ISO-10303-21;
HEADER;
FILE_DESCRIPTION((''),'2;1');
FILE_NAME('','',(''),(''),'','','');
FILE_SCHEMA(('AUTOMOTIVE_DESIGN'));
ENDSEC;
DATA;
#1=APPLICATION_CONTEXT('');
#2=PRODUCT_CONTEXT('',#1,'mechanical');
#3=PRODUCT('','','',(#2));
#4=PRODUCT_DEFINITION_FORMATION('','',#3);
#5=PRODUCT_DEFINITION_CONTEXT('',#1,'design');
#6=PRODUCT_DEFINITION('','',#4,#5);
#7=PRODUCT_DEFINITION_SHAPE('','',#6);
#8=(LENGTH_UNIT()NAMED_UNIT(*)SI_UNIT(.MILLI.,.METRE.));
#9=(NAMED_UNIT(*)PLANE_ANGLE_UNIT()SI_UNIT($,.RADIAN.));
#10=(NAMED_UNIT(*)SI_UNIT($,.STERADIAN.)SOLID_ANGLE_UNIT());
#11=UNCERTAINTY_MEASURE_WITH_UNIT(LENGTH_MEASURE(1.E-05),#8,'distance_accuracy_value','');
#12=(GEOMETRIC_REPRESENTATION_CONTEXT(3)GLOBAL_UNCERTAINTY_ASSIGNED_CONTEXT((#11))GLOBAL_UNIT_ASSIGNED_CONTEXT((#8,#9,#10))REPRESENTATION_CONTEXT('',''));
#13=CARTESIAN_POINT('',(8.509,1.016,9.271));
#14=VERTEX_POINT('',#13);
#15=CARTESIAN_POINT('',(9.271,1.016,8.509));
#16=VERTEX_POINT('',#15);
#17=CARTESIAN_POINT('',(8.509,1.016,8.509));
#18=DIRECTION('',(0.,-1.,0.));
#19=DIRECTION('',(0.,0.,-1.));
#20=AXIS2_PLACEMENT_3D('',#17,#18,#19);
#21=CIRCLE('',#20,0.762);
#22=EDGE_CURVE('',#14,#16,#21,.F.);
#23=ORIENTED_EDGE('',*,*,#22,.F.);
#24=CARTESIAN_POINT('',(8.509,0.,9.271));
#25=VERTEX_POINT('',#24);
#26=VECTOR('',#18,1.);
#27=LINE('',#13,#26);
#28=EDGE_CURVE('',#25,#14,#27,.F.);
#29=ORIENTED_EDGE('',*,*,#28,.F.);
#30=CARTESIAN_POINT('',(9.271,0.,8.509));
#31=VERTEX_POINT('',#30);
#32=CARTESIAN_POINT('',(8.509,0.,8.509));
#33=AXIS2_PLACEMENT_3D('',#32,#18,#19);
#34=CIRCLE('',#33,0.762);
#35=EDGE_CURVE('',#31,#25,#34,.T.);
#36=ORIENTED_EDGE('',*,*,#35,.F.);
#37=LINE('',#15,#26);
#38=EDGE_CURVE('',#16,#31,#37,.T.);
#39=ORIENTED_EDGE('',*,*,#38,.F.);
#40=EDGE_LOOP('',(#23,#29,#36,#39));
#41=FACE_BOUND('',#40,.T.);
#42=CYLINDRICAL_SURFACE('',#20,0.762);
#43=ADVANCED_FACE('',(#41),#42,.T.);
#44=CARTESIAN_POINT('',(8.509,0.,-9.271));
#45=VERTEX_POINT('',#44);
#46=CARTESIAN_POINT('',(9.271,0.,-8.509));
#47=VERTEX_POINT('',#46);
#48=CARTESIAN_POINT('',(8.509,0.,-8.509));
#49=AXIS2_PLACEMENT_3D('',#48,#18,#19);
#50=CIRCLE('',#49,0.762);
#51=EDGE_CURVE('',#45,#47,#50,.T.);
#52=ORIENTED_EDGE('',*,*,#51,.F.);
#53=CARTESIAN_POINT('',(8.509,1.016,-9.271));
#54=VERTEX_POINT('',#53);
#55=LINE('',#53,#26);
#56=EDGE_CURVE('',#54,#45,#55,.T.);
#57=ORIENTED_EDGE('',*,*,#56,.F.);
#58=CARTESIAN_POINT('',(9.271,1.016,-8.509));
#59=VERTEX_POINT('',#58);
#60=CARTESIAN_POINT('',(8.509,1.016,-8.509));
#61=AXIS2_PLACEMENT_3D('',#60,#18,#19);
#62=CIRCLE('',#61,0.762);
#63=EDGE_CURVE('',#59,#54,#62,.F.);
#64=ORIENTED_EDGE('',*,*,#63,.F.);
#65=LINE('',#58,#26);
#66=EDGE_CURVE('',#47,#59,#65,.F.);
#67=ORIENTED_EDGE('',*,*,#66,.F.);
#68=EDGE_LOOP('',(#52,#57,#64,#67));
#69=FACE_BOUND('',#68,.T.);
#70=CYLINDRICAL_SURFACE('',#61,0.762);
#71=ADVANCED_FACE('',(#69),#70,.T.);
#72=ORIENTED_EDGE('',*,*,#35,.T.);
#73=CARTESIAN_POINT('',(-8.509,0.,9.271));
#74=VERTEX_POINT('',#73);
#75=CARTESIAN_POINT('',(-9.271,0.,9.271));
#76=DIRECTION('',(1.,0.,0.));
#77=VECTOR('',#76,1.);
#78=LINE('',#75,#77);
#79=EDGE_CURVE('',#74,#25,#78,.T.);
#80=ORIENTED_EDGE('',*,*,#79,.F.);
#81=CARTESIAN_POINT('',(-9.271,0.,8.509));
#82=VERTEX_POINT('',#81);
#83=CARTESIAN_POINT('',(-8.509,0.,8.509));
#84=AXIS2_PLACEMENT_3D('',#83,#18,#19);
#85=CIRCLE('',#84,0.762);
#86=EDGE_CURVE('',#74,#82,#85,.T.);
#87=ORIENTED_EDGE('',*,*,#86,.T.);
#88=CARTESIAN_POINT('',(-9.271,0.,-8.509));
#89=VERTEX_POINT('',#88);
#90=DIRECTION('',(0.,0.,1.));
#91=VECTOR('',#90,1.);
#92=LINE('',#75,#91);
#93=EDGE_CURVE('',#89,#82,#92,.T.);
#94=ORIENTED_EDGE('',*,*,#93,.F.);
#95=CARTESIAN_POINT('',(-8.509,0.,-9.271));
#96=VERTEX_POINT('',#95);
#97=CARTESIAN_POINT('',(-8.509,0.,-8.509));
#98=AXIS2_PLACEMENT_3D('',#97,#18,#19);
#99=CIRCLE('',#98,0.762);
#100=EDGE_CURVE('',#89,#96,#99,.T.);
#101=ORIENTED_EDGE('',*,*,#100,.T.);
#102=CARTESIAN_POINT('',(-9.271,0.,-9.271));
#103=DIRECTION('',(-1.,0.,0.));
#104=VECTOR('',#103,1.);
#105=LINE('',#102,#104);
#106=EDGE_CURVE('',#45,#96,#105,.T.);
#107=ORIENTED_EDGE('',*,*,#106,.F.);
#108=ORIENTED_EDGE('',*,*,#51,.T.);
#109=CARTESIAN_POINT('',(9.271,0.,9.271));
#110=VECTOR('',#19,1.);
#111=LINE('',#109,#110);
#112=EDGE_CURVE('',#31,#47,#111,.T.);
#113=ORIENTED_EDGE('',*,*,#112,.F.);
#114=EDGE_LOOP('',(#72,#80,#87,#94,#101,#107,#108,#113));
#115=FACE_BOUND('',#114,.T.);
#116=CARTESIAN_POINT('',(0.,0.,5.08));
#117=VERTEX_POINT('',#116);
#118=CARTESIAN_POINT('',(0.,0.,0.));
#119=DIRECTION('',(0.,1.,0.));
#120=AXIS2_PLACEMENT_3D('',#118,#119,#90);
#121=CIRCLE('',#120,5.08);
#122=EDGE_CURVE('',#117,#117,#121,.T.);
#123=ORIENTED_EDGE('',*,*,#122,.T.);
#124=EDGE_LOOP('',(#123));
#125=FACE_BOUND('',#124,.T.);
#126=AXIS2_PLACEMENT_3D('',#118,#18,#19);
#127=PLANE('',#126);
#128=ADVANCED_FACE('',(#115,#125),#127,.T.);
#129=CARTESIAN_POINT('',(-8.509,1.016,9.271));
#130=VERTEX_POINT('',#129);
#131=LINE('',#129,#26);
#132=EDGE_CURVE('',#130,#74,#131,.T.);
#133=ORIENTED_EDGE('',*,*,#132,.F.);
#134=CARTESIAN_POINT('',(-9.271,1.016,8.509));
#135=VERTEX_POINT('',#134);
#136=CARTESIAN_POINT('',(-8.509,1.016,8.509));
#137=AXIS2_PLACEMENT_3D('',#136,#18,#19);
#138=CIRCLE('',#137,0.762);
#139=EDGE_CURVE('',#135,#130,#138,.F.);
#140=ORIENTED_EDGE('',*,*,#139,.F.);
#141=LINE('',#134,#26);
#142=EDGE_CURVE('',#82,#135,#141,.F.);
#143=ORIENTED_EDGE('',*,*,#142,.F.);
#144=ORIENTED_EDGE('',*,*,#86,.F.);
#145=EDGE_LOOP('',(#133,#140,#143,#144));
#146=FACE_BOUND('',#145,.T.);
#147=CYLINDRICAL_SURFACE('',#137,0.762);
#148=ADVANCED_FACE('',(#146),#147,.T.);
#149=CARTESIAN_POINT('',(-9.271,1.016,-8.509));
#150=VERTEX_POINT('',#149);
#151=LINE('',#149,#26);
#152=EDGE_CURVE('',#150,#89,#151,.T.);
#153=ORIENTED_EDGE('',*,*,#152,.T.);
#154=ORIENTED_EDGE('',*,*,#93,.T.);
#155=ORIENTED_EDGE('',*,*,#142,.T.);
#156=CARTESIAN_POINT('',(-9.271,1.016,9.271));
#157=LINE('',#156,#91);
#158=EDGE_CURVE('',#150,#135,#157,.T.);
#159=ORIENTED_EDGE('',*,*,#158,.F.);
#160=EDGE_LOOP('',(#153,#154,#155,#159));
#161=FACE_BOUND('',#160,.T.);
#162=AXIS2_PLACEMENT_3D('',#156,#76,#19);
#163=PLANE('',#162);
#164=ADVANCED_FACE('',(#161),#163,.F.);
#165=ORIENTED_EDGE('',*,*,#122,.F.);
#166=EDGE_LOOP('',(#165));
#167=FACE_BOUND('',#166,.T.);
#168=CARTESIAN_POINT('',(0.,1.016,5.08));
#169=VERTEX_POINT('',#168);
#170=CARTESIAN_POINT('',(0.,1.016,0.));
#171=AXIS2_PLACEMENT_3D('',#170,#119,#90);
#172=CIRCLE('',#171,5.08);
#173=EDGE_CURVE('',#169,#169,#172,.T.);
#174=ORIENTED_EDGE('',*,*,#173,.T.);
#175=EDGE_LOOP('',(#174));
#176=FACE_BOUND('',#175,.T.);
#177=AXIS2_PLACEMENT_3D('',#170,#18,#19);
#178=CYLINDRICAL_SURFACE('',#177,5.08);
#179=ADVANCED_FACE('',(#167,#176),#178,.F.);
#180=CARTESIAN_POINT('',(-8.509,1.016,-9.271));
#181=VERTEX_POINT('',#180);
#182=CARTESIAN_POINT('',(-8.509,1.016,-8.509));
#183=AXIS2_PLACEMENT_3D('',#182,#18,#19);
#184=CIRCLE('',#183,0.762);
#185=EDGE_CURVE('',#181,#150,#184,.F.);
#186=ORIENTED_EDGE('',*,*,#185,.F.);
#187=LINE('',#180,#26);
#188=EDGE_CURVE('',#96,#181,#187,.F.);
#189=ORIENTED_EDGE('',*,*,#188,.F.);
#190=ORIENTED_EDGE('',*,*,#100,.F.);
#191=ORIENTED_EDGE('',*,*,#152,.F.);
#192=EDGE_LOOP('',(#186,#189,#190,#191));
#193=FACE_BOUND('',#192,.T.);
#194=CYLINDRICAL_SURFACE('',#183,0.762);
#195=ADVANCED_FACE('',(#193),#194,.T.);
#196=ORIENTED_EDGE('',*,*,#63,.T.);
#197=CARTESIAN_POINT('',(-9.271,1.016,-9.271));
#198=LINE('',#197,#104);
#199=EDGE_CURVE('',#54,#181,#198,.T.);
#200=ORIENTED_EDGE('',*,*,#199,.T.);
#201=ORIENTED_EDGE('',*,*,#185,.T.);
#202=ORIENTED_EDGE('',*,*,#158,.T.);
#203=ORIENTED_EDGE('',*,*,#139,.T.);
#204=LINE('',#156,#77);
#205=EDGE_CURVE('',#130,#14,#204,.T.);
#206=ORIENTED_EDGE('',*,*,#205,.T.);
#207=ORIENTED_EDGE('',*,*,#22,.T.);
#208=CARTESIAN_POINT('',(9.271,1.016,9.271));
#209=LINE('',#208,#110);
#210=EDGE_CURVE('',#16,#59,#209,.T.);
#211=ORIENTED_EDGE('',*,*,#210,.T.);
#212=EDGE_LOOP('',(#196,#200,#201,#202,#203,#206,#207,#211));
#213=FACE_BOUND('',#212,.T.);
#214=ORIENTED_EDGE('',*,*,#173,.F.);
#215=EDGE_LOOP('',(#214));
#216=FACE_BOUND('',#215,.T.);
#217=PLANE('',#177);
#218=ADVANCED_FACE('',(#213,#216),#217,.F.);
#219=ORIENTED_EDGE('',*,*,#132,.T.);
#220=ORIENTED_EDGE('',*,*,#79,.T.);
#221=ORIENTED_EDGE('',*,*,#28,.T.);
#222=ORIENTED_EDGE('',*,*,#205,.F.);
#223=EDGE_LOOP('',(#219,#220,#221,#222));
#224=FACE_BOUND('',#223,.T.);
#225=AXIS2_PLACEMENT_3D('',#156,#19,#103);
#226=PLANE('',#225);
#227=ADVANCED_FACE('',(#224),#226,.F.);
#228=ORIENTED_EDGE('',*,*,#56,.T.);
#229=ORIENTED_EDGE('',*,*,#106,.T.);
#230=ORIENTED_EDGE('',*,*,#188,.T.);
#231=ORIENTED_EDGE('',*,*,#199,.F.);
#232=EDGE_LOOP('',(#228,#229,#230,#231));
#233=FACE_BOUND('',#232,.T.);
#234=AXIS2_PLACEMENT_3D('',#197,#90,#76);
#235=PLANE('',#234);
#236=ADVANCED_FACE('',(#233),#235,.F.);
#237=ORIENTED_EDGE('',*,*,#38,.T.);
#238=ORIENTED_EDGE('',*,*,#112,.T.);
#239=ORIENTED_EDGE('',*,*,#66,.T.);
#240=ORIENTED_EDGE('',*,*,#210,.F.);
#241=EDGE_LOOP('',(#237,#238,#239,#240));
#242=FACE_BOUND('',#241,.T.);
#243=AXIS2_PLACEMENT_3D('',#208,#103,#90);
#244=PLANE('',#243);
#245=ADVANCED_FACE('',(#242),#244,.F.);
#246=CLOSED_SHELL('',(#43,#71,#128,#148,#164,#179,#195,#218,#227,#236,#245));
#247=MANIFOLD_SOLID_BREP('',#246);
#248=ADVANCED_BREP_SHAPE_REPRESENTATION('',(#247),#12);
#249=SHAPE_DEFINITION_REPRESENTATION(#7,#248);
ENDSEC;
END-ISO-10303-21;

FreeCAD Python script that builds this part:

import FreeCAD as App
import Part
import Sketcher
from FreeCAD import Vector
Q = App.Units.Quantity


def edges_at(feature, points):
    """Names of the edges that pass closest to the given points."""
    edges = feature.Shape.Edges
    near = lambda p: min(range(len(edges)), key=lambda i: edges[i].distToShape(Part.Vertex(*p))[0])
    return sorted({f"Edge{near(p) + 1}" for p in points})


def add_polygon(sketch, points):
    """Adds a closed chain of lines whose ends are joined by coincident constraints."""
    first, n = sketch.GeometryCount, len(points)
    for a, b in zip(points, points[1:] + points[:1]):
        sketch.addGeometry(Part.LineSegment(App.Vector(*a, 0), App.Vector(*b, 0)), False)
    for i in range(n):
        sketch.addConstraint(Sketcher.Constraint("Coincident", first + i, 2, first + (i + 1) % n, 1))

doc = App.newDocument("Part")
body = doc.addObject("PartDesign::Body", "Body")

sketch1 = body.newObject("Sketcher::SketchObject", "Sketch")
sketch1.AttachmentSupport = (doc.getObject("XZ_Plane"), [""])
sketch1.MapMode = "FlatFace"
add_polygon(sketch1, [(-9, -9), (-9, 9), (9, 9), (9, -9)])
sketch1.addGeometry(Part.Circle(Vector(0, 0, 0), Vector(0, 0, 1), 5), False)
sketch1.addConstraint([
    Sketcher.Constraint("Vertical", 0),
    Sketcher.Constraint("Horizontal", 1),
    Sketcher.Constraint("Vertical", 2),
    Sketcher.Constraint("Horizontal", 3),
    Sketcher.Constraint("Coincident", 4, 3, -1, 1),
    Sketcher.Constraint("Symmetric", 0, 2, 2, 2, -1, 1),
    Sketcher.Constraint("Equal", 3, 0),
    Sketcher.Constraint("Diameter", 4, Q("0.4 in")),
    Sketcher.Constraint("DistanceX", 1, 1, 1, 2, Q("0.73 in")),
])
pad1 = body.newObject("PartDesign::Pad", "Pad")
pad1.Profile = sketch1
pad1.Length = Q("0.04 in")
pad1.Reversed = True
doc.recompute()

fillet = body.newObject("PartDesign::Fillet", "Fillet")
fillet.Base = (pad1, edges_at(pad1, [
    (9.271, 0.508, 9.271),
    (-9.271, 0.508, 9.271),
    (-9.271, 0.508, -9.271),
    (9.271, 0.508, -9.271),
]))
fillet.Radius = Q("0.03 in")

doc.recompute()
